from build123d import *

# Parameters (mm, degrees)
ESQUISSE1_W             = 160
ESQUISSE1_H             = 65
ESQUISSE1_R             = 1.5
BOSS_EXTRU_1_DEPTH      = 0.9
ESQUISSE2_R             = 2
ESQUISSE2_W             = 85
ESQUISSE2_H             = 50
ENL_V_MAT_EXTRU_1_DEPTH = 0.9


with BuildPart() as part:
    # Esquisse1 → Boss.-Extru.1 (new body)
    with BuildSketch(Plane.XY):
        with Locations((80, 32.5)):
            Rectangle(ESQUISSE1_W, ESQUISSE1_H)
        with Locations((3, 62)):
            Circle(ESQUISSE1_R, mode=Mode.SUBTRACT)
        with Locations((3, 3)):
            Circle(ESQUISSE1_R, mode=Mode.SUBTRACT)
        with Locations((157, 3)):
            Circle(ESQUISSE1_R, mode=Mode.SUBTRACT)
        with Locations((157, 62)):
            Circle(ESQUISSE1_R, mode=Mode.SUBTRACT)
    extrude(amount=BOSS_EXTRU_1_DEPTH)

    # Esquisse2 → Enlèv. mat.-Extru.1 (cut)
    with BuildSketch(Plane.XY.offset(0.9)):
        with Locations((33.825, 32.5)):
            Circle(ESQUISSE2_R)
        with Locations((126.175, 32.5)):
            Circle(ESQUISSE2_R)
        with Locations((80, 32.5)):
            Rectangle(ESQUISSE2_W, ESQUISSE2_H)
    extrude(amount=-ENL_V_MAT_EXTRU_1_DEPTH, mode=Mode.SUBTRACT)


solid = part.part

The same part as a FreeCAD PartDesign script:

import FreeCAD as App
import Part
import Sketcher
Q = App.Units.Quantity

doc = App.newDocument("Part")
body = doc.addObject("PartDesign::Body", "Body")

sketch1 = doc.addObject("Sketcher::SketchObject", "Sketch")
body.addObject(sketch1)
sketch1.AttachmentSupport = (doc.XY_Plane, [""])
sketch1.MapMode = "FlatFace"
sketch1.addGeometry([
    Part.LineSegment(App.Vector(0, 65, 0), App.Vector(0, 0, 0)),
    Part.LineSegment(App.Vector(0, 0, 0), App.Vector(160, 0, 0)),
    Part.LineSegment(App.Vector(160, 0, 0), App.Vector(160, 65, 0)),
    Part.LineSegment(App.Vector(160, 65, 0), App.Vector(0, 65, 0)),
    Part.Circle(App.Vector(3, 3, 0), App.Vector(0, 0, 1), 1.5),
    Part.Circle(App.Vector(157, 3, 0), App.Vector(0, 0, 1), 1.5),
    Part.Circle(App.Vector(3, 62, 0), App.Vector(0, 0, 1), 1.5),
    Part.Circle(App.Vector(157, 62, 0), App.Vector(0, 0, 1), 1.5),
], False)
sketch1.addConstraint([
    Sketcher.Constraint("Coincident", 0, 2, 1, 1),
    Sketcher.Constraint("Coincident", 1, 2, 2, 1),
    Sketcher.Constraint("Coincident", 2, 2, 3, 1),
    Sketcher.Constraint("Coincident", 3, 2, 0, 1),
    Sketcher.Constraint("Vertical", 0),
    Sketcher.Constraint("Horizontal", 1),
    Sketcher.Constraint("Vertical", 2),
    Sketcher.Constraint("Horizontal", 3),
    Sketcher.Constraint("Coincident", 0, 2, -1, 1),
    Sketcher.Constraint("Equal", 4, 5),
    Sketcher.Constraint("Equal", 5, 6),
    Sketcher.Constraint("Equal", 6, 7),
    Sketcher.Constraint("Horizontal", 4, 3, 5, 3),
    Sketcher.Constraint("Horizontal", 6, 3, 7, 3),
    Sketcher.Constraint("Vertical", 4, 3, 6, 3),
    Sketcher.Constraint("Vertical", 5, 3, 7, 3),
    Sketcher.Constraint("Diameter", 4, Q("3 mm")),
    Sketcher.Constraint("DistanceX", 1, 1, 1, 2, Q("160 mm")),
    Sketcher.Constraint("DistanceY", 0, 2, 0, 1, Q("65 mm")),
    Sketcher.Constraint("DistanceX", -1, 1, 4, 3, Q("3 mm")),
    Sketcher.Constraint("DistanceY", -1, 1, 4, 3, Q("3 mm")),
    Sketcher.Constraint("DistanceX", -1, 1, 5, 3, Q("157 mm")),
    Sketcher.Constraint("DistanceY", -1, 1, 6, 3, Q("62 mm")),
])
pad1 = doc.addObject("PartDesign::Pad", "Pad")
body.addObject(pad1)
pad1.Profile = sketch1
pad1.Length = 0.9

sketch2 = doc.addObject("Sketcher::SketchObject", "Sketch001")
body.addObject(sketch2)
sketch2.AttachmentSupport = (doc.XY_Plane, [""])
sketch2.MapMode = "FlatFace"
sketch2.AttachmentOffset = App.Placement(App.Vector(0, 0, 0.9), App.Rotation())
sketch2.addGeometry([
    Part.Circle(App.Vector(33.825, 32.5, 0), App.Vector(0, 0, 1), 2),
    Part.Circle(App.Vector(126.175, 32.5, 0), App.Vector(0, 0, 1), 2),
    Part.LineSegment(App.Vector(37.5, 57.5, 0), App.Vector(37.5, 7.5, 0)),
    Part.LineSegment(App.Vector(37.5, 7.5, 0), App.Vector(122.5, 7.5, 0)),
    Part.LineSegment(App.Vector(122.5, 7.5, 0), App.Vector(122.5, 57.5, 0)),
    Part.LineSegment(App.Vector(122.5, 57.5, 0), App.Vector(37.5, 57.5, 0)),
], False)
sketch2.addConstraint([
    Sketcher.Constraint("Coincident", 2, 2, 3, 1),
    Sketcher.Constraint("Coincident", 3, 2, 4, 1),
    Sketcher.Constraint("Coincident", 4, 2, 5, 1),
    Sketcher.Constraint("Coincident", 5, 2, 2, 1),
    Sketcher.Constraint("Vertical", 2),
    Sketcher.Constraint("Horizontal", 3),
    Sketcher.Constraint("Vertical", 4),
    Sketcher.Constraint("Horizontal", 5),
    Sketcher.Constraint("Equal", 0, 1),
    Sketcher.Constraint("Horizontal", 0, 3, 1, 3),
    Sketcher.Constraint("Diameter", 0, Q("4 mm")),
    Sketcher.Constraint("DistanceX", 3, 1, 3, 2, Q("85 mm")),
    Sketcher.Constraint("DistanceY", 2, 2, 2, 1, Q("50 mm")),
    Sketcher.Constraint("DistanceY", 2, 2, 0, 3, Q("25 mm")),
    Sketcher.Constraint("DistanceY", -1, 1, 0, 3, Q("32.5 mm")),
    Sketcher.Constraint("DistanceX", -1, 1, 2, 2, Q("37.5 mm")),
    Sketcher.Constraint("DistanceX", 0, 3, 1, 3, Q("92.35 mm")),
    Sketcher.Constraint("DistanceX", -1, 1, 0, 3, Q("33.825 mm")),
])
pocket1 = doc.addObject("PartDesign::Pocket", "Pocket")
body.addObject(pocket1)
pocket1.Profile = sketch2
pocket1.Length = 0.9

doc.recompute()
